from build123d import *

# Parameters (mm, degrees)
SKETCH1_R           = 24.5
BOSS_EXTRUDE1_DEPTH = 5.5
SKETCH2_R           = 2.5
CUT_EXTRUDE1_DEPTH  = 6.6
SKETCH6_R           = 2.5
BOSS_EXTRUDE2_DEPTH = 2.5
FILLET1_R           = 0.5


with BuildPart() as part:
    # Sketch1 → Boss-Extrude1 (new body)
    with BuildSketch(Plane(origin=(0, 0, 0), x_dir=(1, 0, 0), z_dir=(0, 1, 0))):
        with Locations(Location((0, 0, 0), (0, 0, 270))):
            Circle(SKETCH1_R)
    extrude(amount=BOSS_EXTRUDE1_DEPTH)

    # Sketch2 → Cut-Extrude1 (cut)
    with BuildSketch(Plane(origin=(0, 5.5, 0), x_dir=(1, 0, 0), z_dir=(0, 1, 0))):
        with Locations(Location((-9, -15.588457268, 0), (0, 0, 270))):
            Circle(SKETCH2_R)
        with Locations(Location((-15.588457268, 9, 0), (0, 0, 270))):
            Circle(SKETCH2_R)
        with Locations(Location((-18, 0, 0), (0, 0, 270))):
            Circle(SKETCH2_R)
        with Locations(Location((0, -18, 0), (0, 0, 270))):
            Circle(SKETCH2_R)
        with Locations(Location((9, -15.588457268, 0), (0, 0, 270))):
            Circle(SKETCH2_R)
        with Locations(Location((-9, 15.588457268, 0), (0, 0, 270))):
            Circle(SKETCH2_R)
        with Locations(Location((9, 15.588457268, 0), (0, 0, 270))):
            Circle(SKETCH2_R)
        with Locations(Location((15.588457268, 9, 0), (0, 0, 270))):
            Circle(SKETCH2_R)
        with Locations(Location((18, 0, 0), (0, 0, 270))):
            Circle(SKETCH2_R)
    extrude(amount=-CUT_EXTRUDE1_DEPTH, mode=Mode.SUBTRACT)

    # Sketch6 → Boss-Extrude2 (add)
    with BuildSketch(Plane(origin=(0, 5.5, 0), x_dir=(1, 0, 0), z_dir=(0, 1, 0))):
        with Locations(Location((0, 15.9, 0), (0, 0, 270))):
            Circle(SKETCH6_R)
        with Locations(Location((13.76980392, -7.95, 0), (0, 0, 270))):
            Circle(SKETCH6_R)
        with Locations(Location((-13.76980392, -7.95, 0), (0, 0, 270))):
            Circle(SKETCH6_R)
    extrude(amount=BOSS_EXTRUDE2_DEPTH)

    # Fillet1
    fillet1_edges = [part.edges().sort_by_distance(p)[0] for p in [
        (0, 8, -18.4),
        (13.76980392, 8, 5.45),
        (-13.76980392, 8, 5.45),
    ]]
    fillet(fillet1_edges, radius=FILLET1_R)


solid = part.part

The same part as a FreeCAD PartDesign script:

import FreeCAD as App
import Part
import Sketcher
from FreeCAD import Vector
Q = App.Units.Quantity


def edges_at(feature, points):
    """Names of the edges that pass closest to the given points."""
    edges = feature.Shape.Edges
    near = lambda p: min(range(len(edges)), key=lambda i: edges[i].distToShape(Part.Vertex(*p))[0])
    return sorted({f"Edge{near(p) + 1}" for p in points})

doc = App.newDocument("Part")
body = doc.addObject("PartDesign::Body", "Body")

# Sketch on XZ plane
sketch1 = body.newObject("Sketcher::SketchObject", "Sketch")
sketch1.AttachmentSupport = (doc.getObject("XZ_Plane"), [""])
sketch1.MapMode = "FlatFace"
sketch1.addGeometry(Part.Circle(Vector(0, 0, 0), Vector(0, 0, 1), 24.5), False)
sketch1.addConstraint(Sketcher.Constraint("Coincident", 0, 3, -1, 1))
sketch1.addConstraint(Sketcher.Constraint("Diameter", 0, Q("49 mm")))
pad1 = body.newObject("PartDesign::Pad", "Pad")
pad1.Profile = sketch1
pad1.Length = 5.5
pad1.Reversed = True

# Sketch on XZ plane
sketch2 = body.newObject("Sketcher::SketchObject", "Sketch001")
sketch2.AttachmentSupport = (doc.getObject("XZ_Plane"), [""])
sketch2.MapMode = "FlatFace"
sketch2.AttachmentOffset = App.Placement(Vector(0, 0, -5.5), App.Rotation())
sketch2.addGeometry(Part.Circle(Vector(-9, 15.588457, 0), Vector(0, 0, 1), 2.5), False)
sketch2.addGeometry(Part.Circle(Vector(-15.588457, -9, 0), Vector(0, 0, 1), 2.5), False)
sketch2.addGeometry(Part.Circle(Vector(-18, 0, 0), Vector(0, 0, 1), 2.5), False)
sketch2.addGeometry(Part.Circle(Vector(0, 18, 0), Vector(0, 0, 1), 2.5), False)
sketch2.addGeometry(Part.Circle(Vector(9, 15.588457, 0), Vector(0, 0, 1), 2.5), False)
sketch2.addGeometry(Part.Circle(Vector(-9, -15.588457, 0), Vector(0, 0, 1), 2.5), False)
sketch2.addGeometry(Part.Circle(Vector(9, -15.588457, 0), Vector(0, 0, 1), 2.5), False)
sketch2.addGeometry(Part.Circle(Vector(15.588457, -9, 0), Vector(0, 0, 1), 2.5), False)
sketch2.addGeometry(Part.Circle(Vector(18, 0, 0), Vector(0, 0, 1), 2.5), False)
sketch2.addConstraint(Sketcher.Constraint("Equal", 0, 1))
sketch2.addConstraint(Sketcher.Constraint("Equal", 1, 2))
sketch2.addConstraint(Sketcher.Constraint("Equal", 2, 3))
sketch2.addConstraint(Sketcher.Constraint("Equal", 3, 4))
sketch2.addConstraint(Sketcher.Constraint("Equal", 4, 5))
sketch2.addConstraint(Sketcher.Constraint("Equal", 5, 6))
sketch2.addConstraint(Sketcher.Constraint("Equal", 6, 7))
sketch2.addConstraint(Sketcher.Constraint("Equal", 7, 8))
sketch2.addConstraint(Sketcher.Constraint("Symmetric", 4, 3, 5, 3, -1, 1))
sketch2.addConstraint(Sketcher.Constraint("Symmetric", 0, 3, 6, 3, -1, 1))
sketch2.addConstraint(Sketcher.Constraint("Symmetric", 2, 3, 8, 3, -1, 1))
sketch2.addConstraint(Sketcher.Constraint("Symmetric", 0, 3, 4, 3, -2))
sketch2.addConstraint(Sketcher.Constraint("Symmetric", 1, 3, 7, 3, -2))
sketch2.addConstraint(Sketcher.Constraint("PointOnObject", 2, 3, -1))
sketch2.addConstraint(Sketcher.Constraint("PointOnObject", 3, 3, -2))
sketch2.addConstraint(Sketcher.Constraint("Diameter", 0, Q("5 mm")))
sketch2.addConstraint(Sketcher.Constraint("DistanceX", 0, 3, -1, 1, Q("9 mm")))
sketch2.addConstraint(Sketcher.Constraint("DistanceY", 1, 3, -1, 1, Q("9 mm")))
sketch2.addConstraint(Sketcher.Constraint("DistanceX", 2, 3, -1, 1, Q("18 mm")))
sketch2.addConstraint(Sketcher.Constraint("DistanceY", -1, 1, 3, 3, Q("18 mm")))
sketch2.addConstraint(Sketcher.Constraint("DistanceY", -1, 1, 0, 3, Q("15.588457 mm")))
sketch2.addConstraint(Sketcher.Constraint("DistanceX", 1, 3, -1, 1, Q("15.588457 mm")))
pocket1 = body.newObject("PartDesign::Pocket", "Pocket")
pocket1.Profile = sketch2
pocket1.Length = 6.6
pocket1.Reversed = True

# Sketch on XZ plane
sketch3 = body.newObject("Sketcher::SketchObject", "Sketch002")
sketch3.AttachmentSupport = (doc.getObject("XZ_Plane"), [""])
sketch3.MapMode = "FlatFace"
sketch3.AttachmentOffset = App.Placement(Vector(0, 0, -5.5), App.Rotation())
sketch3.addGeometry(Part.Circle(Vector(0, -15.9, 0), Vector(0, 0, 1), 2.5), False)
sketch3.addGeometry(Part.Circle(Vector(13.769804, 7.95, 0), Vector(0, 0, 1), 2.5), False)
sketch3.addGeometry(Part.Circle(Vector(-13.769804, 7.95, 0), Vector(0, 0, 1), 2.5), False)
sketch3.addConstraint(Sketcher.Constraint("Equal", 0, 1))
sketch3.addConstraint(Sketcher.Constraint("Equal", 1, 2))
sketch3.addConstraint(Sketcher.Constraint("Symmetric", 1, 3, 2, 3, -2))
sketch3.addConstraint(Sketcher.Constraint("PointOnObject", 0, 3, -2))
sketch3.addConstraint(Sketcher.Constraint("Diameter", 0, Q("5 mm")))
sketch3.addConstraint(Sketcher.Constraint("DistanceY", 0, 3, -1, 1, Q("15.9 mm")))
sketch3.addConstraint(Sketcher.Constraint("DistanceY", -1, 1, 1, 3, Q("7.95 mm")))
sketch3.addConstraint(Sketcher.Constraint("DistanceX", -1, 1, 1, 3, Q("13.769804 mm")))
pad2 = body.newObject("PartDesign::Pad", "Pad001")
pad2.Profile = sketch3
pad2.Length = 2.5
pad2.Reversed = True
doc.recompute()

fillet = body.newObject("PartDesign::Fillet", "Fillet")
fillet.Base = (pad2, edges_at(pad2, [(0, 8, -18.4), (13.77, 8, 5.45), (-13.77, 8, 5.45)]))
fillet.Radius = 0.5

doc.recompute()
